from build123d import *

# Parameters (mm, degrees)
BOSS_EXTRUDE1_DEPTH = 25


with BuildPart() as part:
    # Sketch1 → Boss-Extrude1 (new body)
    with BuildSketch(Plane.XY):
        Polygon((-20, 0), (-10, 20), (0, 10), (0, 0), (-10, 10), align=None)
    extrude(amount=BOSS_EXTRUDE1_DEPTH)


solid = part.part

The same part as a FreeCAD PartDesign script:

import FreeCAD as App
import Part
import Sketcher

V = App.Vector


def add_polygon(sketch, points):
    """Adds a closed chain of lines whose ends are joined by coincident constraints."""
    first, n = sketch.GeometryCount, len(points)
    for a, b in zip(points, points[1:] + points[:1]):
        sketch.addGeometry(Part.LineSegment(App.Vector(*a, 0), App.Vector(*b, 0)), False)
    for i in range(n):
        sketch.addConstraint(Sketcher.Constraint("Coincident", first + i, 2, first + (i + 1) % n, 1))

doc = App.newDocument("Part")
body = doc.addObject("PartDesign::Body", "Body")

# Sketch on XY plane
sketch1 = body.newObject("Sketcher::SketchObject", "Sketch")
sketch1.AttachmentSupport = (doc.getObject("XY_Plane"), [""])
sketch1.MapMode = "FlatFace"
add_polygon(sketch1, [(-10, 20), (-20, 0), (-10, 10), (0, 0), (0, 10)])  # lines 0-4
sketch1.addConstraint([
    Sketcher.Constraint("Vertical", 3),
    Sketcher.Constraint("Coincident", 2, 2, -1, 1),
    Sketcher.Constraint("PointOnObject", 0, 2, -1),
    Sketcher.Constraint("Perpendicular", 1, 2),
    Sketcher.Constraint("Parallel", 2, 4),
    Sketcher.Constraint("Horizontal", 1, 2, 3, 2),
    Sketcher.Constraint("Vertical", 1, 2, 4, 2),
    Sketcher.Constraint("Equal", 1, 2),
    Sketcher.Constraint("DistanceY", 3, 1, 3, 2, 10.0),
])
pad1 = body.newObject("PartDesign::Pad", "Pad")
pad1.Profile = sketch1
pad1.Length = 25

doc.recompute()
